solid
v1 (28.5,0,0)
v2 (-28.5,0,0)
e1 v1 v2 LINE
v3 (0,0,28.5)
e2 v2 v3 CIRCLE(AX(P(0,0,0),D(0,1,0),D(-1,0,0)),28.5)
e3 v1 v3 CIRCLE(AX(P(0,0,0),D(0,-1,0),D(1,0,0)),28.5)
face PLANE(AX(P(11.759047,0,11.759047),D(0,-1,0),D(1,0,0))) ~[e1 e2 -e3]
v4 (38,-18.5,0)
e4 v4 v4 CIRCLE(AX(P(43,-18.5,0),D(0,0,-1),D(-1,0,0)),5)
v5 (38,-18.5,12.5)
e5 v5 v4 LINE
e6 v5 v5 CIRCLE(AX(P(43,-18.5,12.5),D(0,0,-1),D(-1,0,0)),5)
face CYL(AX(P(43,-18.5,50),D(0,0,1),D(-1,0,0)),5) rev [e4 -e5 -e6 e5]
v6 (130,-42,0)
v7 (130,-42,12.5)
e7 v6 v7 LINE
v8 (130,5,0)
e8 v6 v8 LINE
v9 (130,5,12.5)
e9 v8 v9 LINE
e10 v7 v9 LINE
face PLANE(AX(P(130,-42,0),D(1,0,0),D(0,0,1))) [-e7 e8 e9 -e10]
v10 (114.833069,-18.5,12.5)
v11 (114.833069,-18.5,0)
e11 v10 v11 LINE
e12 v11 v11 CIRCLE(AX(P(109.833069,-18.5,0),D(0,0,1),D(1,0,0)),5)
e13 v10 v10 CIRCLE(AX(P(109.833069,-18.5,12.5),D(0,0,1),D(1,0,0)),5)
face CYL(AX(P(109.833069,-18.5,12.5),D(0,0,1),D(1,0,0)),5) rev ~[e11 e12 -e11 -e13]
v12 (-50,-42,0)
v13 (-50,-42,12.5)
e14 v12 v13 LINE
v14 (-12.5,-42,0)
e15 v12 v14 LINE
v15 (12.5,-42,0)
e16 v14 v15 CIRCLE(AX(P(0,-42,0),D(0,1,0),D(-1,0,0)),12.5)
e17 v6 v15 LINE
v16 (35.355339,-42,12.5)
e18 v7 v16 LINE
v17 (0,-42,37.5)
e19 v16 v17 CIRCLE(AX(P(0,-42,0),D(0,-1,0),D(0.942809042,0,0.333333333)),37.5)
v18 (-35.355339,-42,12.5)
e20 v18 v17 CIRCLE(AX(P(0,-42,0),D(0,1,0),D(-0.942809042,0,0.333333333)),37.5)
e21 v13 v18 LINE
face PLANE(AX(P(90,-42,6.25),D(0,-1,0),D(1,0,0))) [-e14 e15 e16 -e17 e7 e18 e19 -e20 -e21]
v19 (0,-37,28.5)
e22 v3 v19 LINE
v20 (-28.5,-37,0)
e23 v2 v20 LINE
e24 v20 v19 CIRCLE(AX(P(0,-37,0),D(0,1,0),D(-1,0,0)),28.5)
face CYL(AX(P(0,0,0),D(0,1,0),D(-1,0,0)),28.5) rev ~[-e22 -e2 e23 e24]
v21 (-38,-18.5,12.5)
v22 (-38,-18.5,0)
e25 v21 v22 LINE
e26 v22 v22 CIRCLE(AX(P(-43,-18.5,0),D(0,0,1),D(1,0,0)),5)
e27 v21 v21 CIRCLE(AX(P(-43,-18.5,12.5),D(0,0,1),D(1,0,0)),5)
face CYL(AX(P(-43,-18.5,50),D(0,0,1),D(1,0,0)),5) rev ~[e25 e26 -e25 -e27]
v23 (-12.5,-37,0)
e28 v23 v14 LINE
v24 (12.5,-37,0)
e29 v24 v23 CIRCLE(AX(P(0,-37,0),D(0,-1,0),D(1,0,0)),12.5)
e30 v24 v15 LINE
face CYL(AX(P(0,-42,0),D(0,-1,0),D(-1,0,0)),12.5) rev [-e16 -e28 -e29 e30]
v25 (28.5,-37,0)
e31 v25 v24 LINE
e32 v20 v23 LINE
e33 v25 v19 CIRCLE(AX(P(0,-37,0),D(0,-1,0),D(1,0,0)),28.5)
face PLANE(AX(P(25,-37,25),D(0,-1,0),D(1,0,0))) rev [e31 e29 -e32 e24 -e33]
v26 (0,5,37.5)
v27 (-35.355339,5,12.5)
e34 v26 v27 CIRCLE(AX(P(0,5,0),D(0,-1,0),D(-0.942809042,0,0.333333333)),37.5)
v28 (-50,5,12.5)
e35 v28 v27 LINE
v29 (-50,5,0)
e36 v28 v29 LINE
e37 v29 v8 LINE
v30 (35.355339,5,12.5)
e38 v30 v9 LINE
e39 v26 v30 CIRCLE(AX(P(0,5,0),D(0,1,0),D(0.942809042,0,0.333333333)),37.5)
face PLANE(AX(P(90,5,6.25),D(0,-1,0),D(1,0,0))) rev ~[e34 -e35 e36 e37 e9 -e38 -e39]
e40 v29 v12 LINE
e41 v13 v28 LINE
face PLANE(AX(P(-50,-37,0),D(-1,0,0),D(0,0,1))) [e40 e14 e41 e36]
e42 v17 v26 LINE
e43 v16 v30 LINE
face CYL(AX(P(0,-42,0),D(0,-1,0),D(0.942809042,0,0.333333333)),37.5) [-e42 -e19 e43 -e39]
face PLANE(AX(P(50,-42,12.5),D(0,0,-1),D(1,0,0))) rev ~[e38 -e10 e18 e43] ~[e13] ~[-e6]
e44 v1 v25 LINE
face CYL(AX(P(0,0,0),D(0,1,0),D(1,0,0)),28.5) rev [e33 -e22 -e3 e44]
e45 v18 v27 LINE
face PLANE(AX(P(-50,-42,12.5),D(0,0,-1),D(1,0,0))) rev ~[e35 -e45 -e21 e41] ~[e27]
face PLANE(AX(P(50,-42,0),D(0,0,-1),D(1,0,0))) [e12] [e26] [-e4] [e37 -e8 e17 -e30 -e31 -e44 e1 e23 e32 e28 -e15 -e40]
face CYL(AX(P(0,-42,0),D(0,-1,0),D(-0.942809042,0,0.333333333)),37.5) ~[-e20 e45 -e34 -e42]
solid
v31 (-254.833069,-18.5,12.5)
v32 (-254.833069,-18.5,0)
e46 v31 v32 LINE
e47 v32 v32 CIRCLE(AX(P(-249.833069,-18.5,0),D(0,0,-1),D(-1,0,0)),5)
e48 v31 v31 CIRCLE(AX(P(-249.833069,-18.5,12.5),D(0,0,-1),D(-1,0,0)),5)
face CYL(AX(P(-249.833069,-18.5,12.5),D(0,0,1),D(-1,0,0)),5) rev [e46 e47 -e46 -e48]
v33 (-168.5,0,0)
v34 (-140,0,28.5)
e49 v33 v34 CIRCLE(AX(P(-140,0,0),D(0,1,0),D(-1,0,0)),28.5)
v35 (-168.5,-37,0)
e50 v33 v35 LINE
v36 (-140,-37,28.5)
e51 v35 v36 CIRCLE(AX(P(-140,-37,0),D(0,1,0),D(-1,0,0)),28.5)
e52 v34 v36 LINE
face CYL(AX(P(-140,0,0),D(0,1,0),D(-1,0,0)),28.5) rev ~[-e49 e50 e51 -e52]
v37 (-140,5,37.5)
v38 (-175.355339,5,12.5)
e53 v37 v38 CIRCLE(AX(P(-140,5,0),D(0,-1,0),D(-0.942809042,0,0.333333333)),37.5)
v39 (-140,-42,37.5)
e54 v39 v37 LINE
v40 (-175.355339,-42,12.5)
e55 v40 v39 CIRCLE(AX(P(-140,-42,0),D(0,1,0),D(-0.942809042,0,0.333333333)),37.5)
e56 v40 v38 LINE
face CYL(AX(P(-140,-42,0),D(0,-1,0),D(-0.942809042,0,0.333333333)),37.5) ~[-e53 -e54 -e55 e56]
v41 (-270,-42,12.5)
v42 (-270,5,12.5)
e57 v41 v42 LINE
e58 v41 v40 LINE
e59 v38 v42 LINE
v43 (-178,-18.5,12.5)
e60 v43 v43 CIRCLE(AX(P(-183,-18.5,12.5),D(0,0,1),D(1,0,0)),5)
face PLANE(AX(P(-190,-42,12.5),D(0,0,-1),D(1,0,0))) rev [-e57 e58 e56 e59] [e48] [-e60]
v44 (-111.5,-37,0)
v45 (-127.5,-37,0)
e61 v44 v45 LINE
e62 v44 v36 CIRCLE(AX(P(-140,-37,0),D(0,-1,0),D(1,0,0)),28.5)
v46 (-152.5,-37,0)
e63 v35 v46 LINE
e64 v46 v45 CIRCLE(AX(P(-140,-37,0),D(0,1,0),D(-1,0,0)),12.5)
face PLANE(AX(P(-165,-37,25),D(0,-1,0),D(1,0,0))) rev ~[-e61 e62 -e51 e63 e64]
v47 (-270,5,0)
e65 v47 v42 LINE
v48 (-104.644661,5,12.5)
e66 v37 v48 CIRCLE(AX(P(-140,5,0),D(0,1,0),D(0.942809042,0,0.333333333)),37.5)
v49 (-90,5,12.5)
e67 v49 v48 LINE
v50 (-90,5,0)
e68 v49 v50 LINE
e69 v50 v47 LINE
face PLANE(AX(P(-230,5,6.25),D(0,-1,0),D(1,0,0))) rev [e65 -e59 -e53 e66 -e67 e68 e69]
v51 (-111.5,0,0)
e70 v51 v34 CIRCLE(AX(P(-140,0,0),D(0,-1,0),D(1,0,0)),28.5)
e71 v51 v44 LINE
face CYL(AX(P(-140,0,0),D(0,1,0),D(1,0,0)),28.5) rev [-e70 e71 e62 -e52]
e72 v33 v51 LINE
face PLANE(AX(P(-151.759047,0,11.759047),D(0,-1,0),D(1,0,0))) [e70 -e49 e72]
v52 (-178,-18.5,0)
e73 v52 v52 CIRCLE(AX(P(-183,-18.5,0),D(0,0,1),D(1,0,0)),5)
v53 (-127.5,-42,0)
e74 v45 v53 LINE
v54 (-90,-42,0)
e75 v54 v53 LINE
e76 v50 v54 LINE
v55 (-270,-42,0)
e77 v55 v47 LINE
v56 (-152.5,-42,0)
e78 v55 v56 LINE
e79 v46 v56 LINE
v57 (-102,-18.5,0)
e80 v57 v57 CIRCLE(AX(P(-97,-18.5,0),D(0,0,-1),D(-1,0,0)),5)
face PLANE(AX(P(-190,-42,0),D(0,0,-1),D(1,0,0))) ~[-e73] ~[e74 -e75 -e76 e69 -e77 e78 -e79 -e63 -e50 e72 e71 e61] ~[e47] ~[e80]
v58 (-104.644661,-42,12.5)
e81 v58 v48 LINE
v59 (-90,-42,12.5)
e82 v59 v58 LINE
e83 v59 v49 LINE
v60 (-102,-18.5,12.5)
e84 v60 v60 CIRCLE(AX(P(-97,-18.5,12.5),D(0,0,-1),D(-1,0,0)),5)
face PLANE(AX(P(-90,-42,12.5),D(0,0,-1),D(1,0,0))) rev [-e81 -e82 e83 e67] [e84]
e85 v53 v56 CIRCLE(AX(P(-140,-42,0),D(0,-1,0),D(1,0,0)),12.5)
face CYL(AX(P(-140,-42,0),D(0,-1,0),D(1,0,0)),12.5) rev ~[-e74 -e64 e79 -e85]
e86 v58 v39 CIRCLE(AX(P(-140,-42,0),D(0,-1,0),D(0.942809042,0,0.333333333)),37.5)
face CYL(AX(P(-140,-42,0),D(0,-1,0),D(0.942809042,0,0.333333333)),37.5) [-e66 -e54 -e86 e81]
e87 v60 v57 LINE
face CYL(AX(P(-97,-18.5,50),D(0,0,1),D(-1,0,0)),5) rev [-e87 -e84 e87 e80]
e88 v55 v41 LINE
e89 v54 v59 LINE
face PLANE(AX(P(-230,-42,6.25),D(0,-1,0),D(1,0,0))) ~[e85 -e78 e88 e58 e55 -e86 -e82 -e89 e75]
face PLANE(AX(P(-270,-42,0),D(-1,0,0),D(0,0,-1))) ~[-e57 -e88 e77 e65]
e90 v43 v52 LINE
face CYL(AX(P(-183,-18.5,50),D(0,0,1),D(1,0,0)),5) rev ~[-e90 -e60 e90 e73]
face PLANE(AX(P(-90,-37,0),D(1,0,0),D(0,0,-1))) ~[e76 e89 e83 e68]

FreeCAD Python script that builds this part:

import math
import FreeCAD as App
import Part
import Sketcher
from FreeCAD import Vector

doc = App.newDocument("Part")
body = doc.addObject("PartDesign::Body", "Body")

sketch1 = body.newObject("Sketcher::SketchObject", "Sketch")
sketch1.AttachmentSupport = (doc.getObject("XZ_Plane"), [""])
sketch1.MapMode = "FlatFace"
sketch1.addGeometry(Part.LineSegment(Vector(-50, 0, 0), Vector(-28, 0, 0)), False)
sketch1.addGeometry(Part.ArcOfCircle(Part.Circle(Vector(0, 0, 0), Vector(0, 0, 1), 28), math.radians(90), math.radians(180)), False)
sketch1.addGeometry(Part.LineSegment(Vector(0, 28, 0), Vector(0, 50, 0)), False)
sketch1.addGeometry(Part.LineSegment(Vector(0, 50, 0), Vector(-50, 50, 0)), False)
sketch1.addGeometry(Part.LineSegment(Vector(-50, 50, 0), Vector(-50, 0, 0)), False)
sketch1.addConstraint(Sketcher.Constraint("Coincident", 0, 2, 1, 2))
sketch1.addConstraint(Sketcher.Constraint("Coincident", 1, 1, 2, 1))
sketch1.addConstraint(Sketcher.Constraint("Coincident", 2, 2, 3, 1))
sketch1.addConstraint(Sketcher.Constraint("Coincident", 3, 2, 4, 1))
sketch1.addConstraint(Sketcher.Constraint("Coincident", 4, 2, 0, 1))
sketch1.addConstraint(Sketcher.Constraint("Horizontal", 0))
sketch1.addConstraint(Sketcher.Constraint("Vertical", 2))
sketch1.addConstraint(Sketcher.Constraint("Horizontal", 3))
sketch1.addConstraint(Sketcher.Constraint("Vertical", 4))
sketch1.addConstraint(Sketcher.Constraint("Coincident", 1, 3, -1, 1))
sketch1.addConstraint(Sketcher.Constraint("PointOnObject", 0, 2, -1))
sketch1.addConstraint(Sketcher.Constraint("PointOnObject", 1, 1, -2))
sketch1.addConstraint(Sketcher.Constraint("Equal", 0, 2))
sketch1.addConstraint(Sketcher.Constraint("Radius", 1, 28.5))
sketch1.addConstraint(Sketcher.Constraint("DistanceX", 3, 2, 3, 1, 50.0))
pad1 = body.newObject("PartDesign::Pad", "Pad")
pad1.Profile = sketch1
pad1.Length = 37

sketch2 = body.newObject("Sketcher::SketchObject", "Sketch001")
sketch2.AttachmentSupport = (doc.getObject("XZ_Plane"), [""])
sketch2.MapMode = "FlatFace"
sketch2.addGeometry(Part.LineSegment(Vector(0, 0, 0), Vector(0, 50, 0)), False)
sketch2.addGeometry(Part.LineSegment(Vector(0, 50, 0), Vector(-50, 50, 0)), False)
sketch2.addGeometry(Part.LineSegment(Vector(-50, 50, 0), Vector(-50, 0, 0)), False)
sketch2.addGeometry(Part.LineSegment(Vector(-50, 0, 0), Vector(0, 0, 0)), False)
sketch2.addConstraint(Sketcher.Constraint("Coincident", 0, 2, 1, 1))
sketch2.addConstraint(Sketcher.Constraint("Coincident", 1, 2, 2, 1))
sketch2.addConstraint(Sketcher.Constraint("Coincident", 2, 2, 3, 1))
sketch2.addConstraint(Sketcher.Constraint("Coincident", 3, 2, 0, 1))
sketch2.addConstraint(Sketcher.Constraint("Vertical", 0))
sketch2.addConstraint(Sketcher.Constraint("Horizontal", 1))
sketch2.addConstraint(Sketcher.Constraint("Vertical", 2))
sketch2.addConstraint(Sketcher.Constraint("Horizontal", 3))
sketch2.addConstraint(Sketcher.Constraint("Coincident", 3, 2, -1, 1))
sketch2.addConstraint(Sketcher.Constraint("Equal", 3, 0))
sketch2.addConstraint(Sketcher.Constraint("DistanceX", 1, 2, 1, 1, 50.0))
pad2 = body.newObject("PartDesign::Pad", "Pad001")
pad2.Profile = sketch2
pad2.Length = 5
pad2.Reversed = True

sketch3 = body.newObject("Sketcher::SketchObject", "Sketch002")
sketch3.AttachmentSupport = (doc.getObject("XZ_Plane"), [""])
sketch3.MapMode = "FlatFace"
sketch3.AttachmentOffset = App.Placement(Vector(0, 0, 37), App.Rotation())
sketch3.addGeometry(Part.LineSegment(Vector(-50, 50, 0), Vector(-50, 0, 0)), False)
sketch3.addGeometry(Part.LineSegment(Vector(-50, 0, 0), Vector(0, 0, 0)), False)
sketch3.addGeometry(Part.LineSegment(Vector(0, 0, 0), Vector(0, 50, 0)), False)
sketch3.addGeometry(Part.LineSegment(Vector(0, 50, 0), Vector(-50, 50, 0)), False)
sketch3.addConstraint(Sketcher.Constraint("Coincident", 0, 2, 1, 1))
sketch3.addConstraint(Sketcher.Constraint("Coincident", 1, 2, 2, 1))
sketch3.addConstraint(Sketcher.Constraint("Coincident", 2, 2, 3, 1))
sketch3.addConstraint(Sketcher.Constraint("Coincident", 3, 2, 0, 1))
sketch3.addConstraint(Sketcher.Constraint("Vertical", 0))
sketch3.addConstraint(Sketcher.Constraint("Horizontal", 1))
sketch3.addConstraint(Sketcher.Constraint("Vertical", 2))
sketch3.addConstraint(Sketcher.Constraint("Horizontal", 3))
sketch3.addConstraint(Sketcher.Constraint("Coincident", 1, 2, -1, 1))
sketch3.addConstraint(Sketcher.Constraint("Equal", 3, 0))
sketch3.addConstraint(Sketcher.Constraint("DistanceX", 1, 1, 1, 2, 50.0))
pad3 = body.newObject("PartDesign::Pad", "Pad002")
pad3.Profile = sketch3
pad3.Length = 5

sketch4 = body.newObject("Sketcher::SketchObject", "Sketch003")
sketch4.AttachmentSupport = (doc.getObject("XY_Plane"), [""])
sketch4.MapMode = "FlatFace"
sketch4.AttachmentOffset = App.Placement(Vector(0, 0, 50), App.Rotation())
sketch4.addGeometry(Part.Circle(Vector(-43, -18, 0), Vector(0, 0, 1), 5), False)
sketch4.addConstraint(Sketcher.Constraint("Diameter", 0, 10.0))
sketch4.addConstraint(Sketcher.Constraint("DistanceX", 0, 3, -1, 1, 43.0))
sketch4.addConstraint(Sketcher.Constraint("DistanceY", 0, 3, -1, 1, 18.5))
pocket1 = body.newObject("PartDesign::Pocket", "Pocket")
pocket1.Profile = sketch4
pocket1.Length = 100

sketch5 = body.newObject("Sketcher::SketchObject", "Sketch004")
sketch5.AttachmentSupport = (doc.getObject("XZ_Plane"), [""])
sketch5.MapMode = "FlatFace"
sketch5.AttachmentOffset = App.Placement(Vector(0, 0, 42), App.Rotation())
sketch5.addGeometry(Part.Circle(Vector(0, 0, 0), Vector(0, 0, 1), 12), False)
sketch5.addConstraint(Sketcher.Constraint("Coincident", 0, 3, -1, 1))
sketch5.addConstraint(Sketcher.Constraint("Diameter", 0, 25.0))
pocket2 = body.newObject("PartDesign::Pocket", "Pocket001")
pocket2.Profile = sketch5
pocket2.Length = 5

sketch6 = body.newObject("Sketcher::SketchObject", "Sketch005")
sketch6.AttachmentSupport = (doc.getObject("XZ_Plane"), [""])
sketch6.MapMode = "FlatFace"
sketch6.AttachmentOffset = App.Placement(Vector(0, 0, 42), App.Rotation())
sketch6.addGeometry(Part.ArcOfCircle(Part.Circle(Vector(0, 0, 0), Vector(0, 0, 1), 38), math.radians(90), math.radians(161)), False)
sketch6.addGeometry(Part.LineSegment(Vector(0, 38, 0), Vector(0, 50, 0)), False)
sketch6.addGeometry(Part.LineSegment(Vector(0, 50, 0), Vector(-50, 50, 0)), False)
sketch6.addGeometry(Part.LineSegment(Vector(-50, 50, 0), Vector(-50, 12, 0)), False)
sketch6.addGeometry(Part.LineSegment(Vector(-50, 12, 0), Vector(-35, 12, 0)), False)
sketch6.addConstraint(Sketcher.Constraint("Coincident", 0, 1, 1, 1))
sketch6.addConstraint(Sketcher.Constraint("Coincident", 1, 2, 2, 1))
sketch6.addConstraint(Sketcher.Constraint("Coincident", 2, 2, 3, 1))
sketch6.addConstraint(Sketcher.Constraint("Coincident", 3, 2, 4, 1))
sketch6.addConstraint(Sketcher.Constraint("Coincident", 4, 2, 0, 2))
sketch6.addConstraint(Sketcher.Constraint("Vertical", 1))
sketch6.addConstraint(Sketcher.Constraint("Horizontal", 2))
sketch6.addConstraint(Sketcher.Constraint("Vertical", 3))
sketch6.addConstraint(Sketcher.Constraint("Horizontal", 4))
sketch6.addConstraint(Sketcher.Constraint("Coincident", 0, 3, -1, 1))
sketch6.addConstraint(Sketcher.Constraint("PointOnObject", 0, 1, -2))
sketch6.addConstraint(Sketcher.Constraint("Radius", 0, 37.5))
sketch6.addConstraint(Sketcher.Constraint("DistanceX", 2, 2, 2, 1, 50.0))
sketch6.addConstraint(Sketcher.Constraint("DistanceY", 1, 1, 1, 2, 12.5))
sketch6.addConstraint(Sketcher.Constraint("DistanceY", 3, 2, 3, 1, 37.5))
pocket3 = body.newObject("PartDesign::Pocket", "Pocket002")
pocket3.Profile = sketch6
pocket3.Length = 55
body2 = doc.addObject("PartDesign::Body", "Body001")
doc.recompute()

body2.BaseFeature = body
doc.recompute()

mirroring = doc.addObject("Part::Mirroring", "Mirroring")
mirroring.Source = body
mirroring.Base = Vector(0, 0, 0)
mirroring.Normal = Vector(1, 0, 0)
body3 = doc.addObject("PartDesign::Body", "Body002")
body3.BaseFeature = mirroring
boolean = body2.newObject("PartDesign::Boolean", "Boolean")
boolean.Type = "Fuse"
boolean.addObjects([body3])
doc.recompute()

sketch7 = body2.newObject("Sketcher::SketchObject", "Sketch006")
sketch7.AttachmentSupport = (doc.getObject("XZ_Plane001"), [""])
sketch7.MapMode = "FlatFace"
sketch7.AttachmentOffset = App.Placement(Vector(0, 0, 42), App.Rotation())
sketch7.addGeometry(Part.LineSegment(Vector(50, 12, 0), Vector(50, 0, 0)), False)
sketch7.addGeometry(Part.LineSegment(Vector(50, 0, 0), Vector(130, 0, 0)), False)
sketch7.addGeometry(Part.LineSegment(Vector(130, 0, 0), Vector(130, 12, 0)), False)
sketch7.addGeometry(Part.LineSegment(Vector(130, 12, 0), Vector(50, 12, 0)), False)
sketch7.addConstraint(Sketcher.Constraint("Coincident", 0, 2, 1, 1))
sketch7.addConstraint(Sketcher.Constraint("Coincident", 1, 2, 2, 1))
sketch7.addConstraint(Sketcher.Constraint("Coincident", 2, 2, 3, 1))
sketch7.addConstraint(Sketcher.Constraint("Coincident", 3, 2, 0, 1))
sketch7.addConstraint(Sketcher.Constraint("Vertical", 0))
sketch7.addConstraint(Sketcher.Constraint("Horizontal", 1))
sketch7.addConstraint(Sketcher.Constraint("Vertical", 2))
sketch7.addConstraint(Sketcher.Constraint("Horizontal", 3))
sketch7.addConstraint(Sketcher.Constraint("PointOnObject", 0, 2, -1))
sketch7.addConstraint(Sketcher.Constraint("DistanceX", 1, 1, 1, 2, 80.0))
sketch7.addConstraint(Sketcher.Constraint("DistanceY", 0, 2, 0, 1, 12.5))
sketch7.addConstraint(Sketcher.Constraint("DistanceX", -1, 1, 0, 2, 50.0))
pad4 = body2.newObject("PartDesign::Pad", "Pad003")
pad4.Profile = sketch7
pad4.Length = 47
pad4.Reversed = True

sketch8 = body2.newObject("Sketcher::SketchObject", "Sketch007")
sketch8.AttachmentSupport = (doc.getObject("XY_Plane001"), [""])
sketch8.MapMode = "FlatFace"
sketch8.AttachmentOffset = App.Placement(Vector(0, 0, 12.5), App.Rotation())
sketch8.addGeometry(Part.Circle(Vector(110, -18, 0), Vector(0, 0, 1), 5), False)
sketch8.addConstraint(Sketcher.Constraint("Diameter", 0, 10.0))
sketch8.addConstraint(Sketcher.Constraint("DistanceY", 0, 3, -1, 1, 18.5))
sketch8.addConstraint(Sketcher.Constraint("DistanceX", -1, 1, 0, 3, 109.833069))
pocket4 = body2.newObject("PartDesign::Pocket", "Pocket003")
pocket4.Profile = sketch8
pocket4.Length = 25
body4 = doc.addObject("PartDesign::Body", "Body003")
doc.recompute()

mirroring2 = doc.addObject("Part::Mirroring", "Mirroring001")
mirroring2.Source = body2
mirroring2.Base = Vector(-70, 0, 0)
mirroring2.Normal = Vector(1, 0, 0)
body4.BaseFeature = mirroring2
doc.recompute()
mirroring.Visibility = False
mirroring2.Visibility = False

doc.recompute()
